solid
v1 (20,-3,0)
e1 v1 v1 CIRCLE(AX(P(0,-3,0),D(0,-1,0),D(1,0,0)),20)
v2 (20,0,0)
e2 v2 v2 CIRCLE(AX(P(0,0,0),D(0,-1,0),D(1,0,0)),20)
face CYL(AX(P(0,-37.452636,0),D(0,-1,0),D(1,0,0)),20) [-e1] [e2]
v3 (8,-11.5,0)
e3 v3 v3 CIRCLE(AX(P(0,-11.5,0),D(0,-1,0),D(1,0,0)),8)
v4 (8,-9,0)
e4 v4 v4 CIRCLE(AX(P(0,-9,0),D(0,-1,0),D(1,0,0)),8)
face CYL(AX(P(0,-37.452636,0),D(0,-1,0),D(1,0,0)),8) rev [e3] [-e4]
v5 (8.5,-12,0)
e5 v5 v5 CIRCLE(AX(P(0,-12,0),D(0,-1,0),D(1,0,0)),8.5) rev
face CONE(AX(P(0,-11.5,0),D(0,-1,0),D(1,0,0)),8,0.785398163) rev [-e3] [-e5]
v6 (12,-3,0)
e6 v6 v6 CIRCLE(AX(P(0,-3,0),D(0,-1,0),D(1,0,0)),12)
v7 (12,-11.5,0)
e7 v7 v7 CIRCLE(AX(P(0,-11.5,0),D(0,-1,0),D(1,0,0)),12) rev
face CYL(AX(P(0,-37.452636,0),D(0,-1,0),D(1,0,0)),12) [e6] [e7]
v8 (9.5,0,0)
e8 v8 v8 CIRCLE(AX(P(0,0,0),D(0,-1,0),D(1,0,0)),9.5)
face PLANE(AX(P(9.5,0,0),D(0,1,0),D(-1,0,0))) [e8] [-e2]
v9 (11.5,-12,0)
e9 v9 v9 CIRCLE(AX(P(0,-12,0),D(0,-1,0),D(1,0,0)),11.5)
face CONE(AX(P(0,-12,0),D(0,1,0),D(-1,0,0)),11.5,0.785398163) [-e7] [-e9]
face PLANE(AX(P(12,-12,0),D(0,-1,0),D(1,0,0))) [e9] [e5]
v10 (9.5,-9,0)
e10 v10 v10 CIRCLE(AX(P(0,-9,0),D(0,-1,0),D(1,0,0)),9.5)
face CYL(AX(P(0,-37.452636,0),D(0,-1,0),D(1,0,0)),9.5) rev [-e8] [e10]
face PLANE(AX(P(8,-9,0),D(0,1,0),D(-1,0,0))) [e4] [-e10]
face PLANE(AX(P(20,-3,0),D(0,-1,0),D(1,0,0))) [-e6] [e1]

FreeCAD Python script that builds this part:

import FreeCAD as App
import Part
import Sketcher
from FreeCAD import Vector
Q = App.Units.Quantity


def edges_at(feature, points):
    """Names of the edges that pass closest to the given points."""
    edges = feature.Shape.Edges
    near = lambda p: min(range(len(edges)), key=lambda i: edges[i].distToShape(Part.Vertex(*p))[0])
    return sorted({f"Edge{near(p) + 1}" for p in points})


def add_polygon(sketch, points):
    """Adds a closed chain of lines whose ends are joined by coincident constraints."""
    first, n = sketch.GeometryCount, len(points)
    for a, b in zip(points, points[1:] + points[:1]):
        sketch.addGeometry(Part.LineSegment(App.Vector(*a, 0), App.Vector(*b, 0)), False)
    for i in range(n):
        sketch.addConstraint(Sketcher.Constraint("Coincident", first + i, 2, first + (i + 1) % n, 1))

doc = App.newDocument("Part")
body = doc.addObject("PartDesign::Body", "Body")

sketch1 = body.newObject("Sketcher::SketchObject", "Sketch")
sketch1.AttachmentSupport = (doc.getObject("XY_Plane"), [""])
sketch1.MapMode = "FlatFace"
add_polygon(sketch1, [(20, 0), (9.5, 0), (9.5, -9), (8, -9), (8, -12), (12, -12), (12, -3), (20, -3)])
sketch1.addConstraint([
    Sketcher.Constraint("Horizontal", 0),
    Sketcher.Constraint("Vertical", 1),
    Sketcher.Constraint("Horizontal", 2),
    Sketcher.Constraint("Vertical", 3),
    Sketcher.Constraint("Horizontal", 4),
    Sketcher.Constraint("Vertical", 5),
    Sketcher.Constraint("Horizontal", 6),
    Sketcher.Constraint("Vertical", 7),
    Sketcher.Constraint("PointOnObject", 0, 2, -1),
    Sketcher.Constraint("Equal", 1, 5),
    Sketcher.Constraint("DistanceX", 4, 1, 4, 2, Q("4 mm")),
    Sketcher.Constraint("DistanceX", 6, 1, 6, 2, Q("8 mm")),
    Sketcher.Constraint("DistanceY", 1, 2, 1, 1, Q("9 mm")),
    Sketcher.Constraint("DistanceY", 3, 2, 3, 1, Q("3 mm")),
    Sketcher.Constraint("DistanceX", 0, 2, 0, 1, Q("10.5 mm")),
    Sketcher.Constraint("DistanceX", -1, 1, 2, 2, Q("8 mm")),
])
revolution = body.newObject("PartDesign::Revolution", "Revolution")
revolution.Profile = sketch1
revolution.ReferenceAxis = (sketch1, ["V_Axis"])
revolution.Angle = 360
doc.recompute()

chamfer = body.newObject("PartDesign::Chamfer", "Chamfer")
chamfer.Base = (revolution, edges_at(revolution, [(-8, -12, 0), (-12, -12, 0)]))
chamfer.Size = 0.5

doc.recompute()
